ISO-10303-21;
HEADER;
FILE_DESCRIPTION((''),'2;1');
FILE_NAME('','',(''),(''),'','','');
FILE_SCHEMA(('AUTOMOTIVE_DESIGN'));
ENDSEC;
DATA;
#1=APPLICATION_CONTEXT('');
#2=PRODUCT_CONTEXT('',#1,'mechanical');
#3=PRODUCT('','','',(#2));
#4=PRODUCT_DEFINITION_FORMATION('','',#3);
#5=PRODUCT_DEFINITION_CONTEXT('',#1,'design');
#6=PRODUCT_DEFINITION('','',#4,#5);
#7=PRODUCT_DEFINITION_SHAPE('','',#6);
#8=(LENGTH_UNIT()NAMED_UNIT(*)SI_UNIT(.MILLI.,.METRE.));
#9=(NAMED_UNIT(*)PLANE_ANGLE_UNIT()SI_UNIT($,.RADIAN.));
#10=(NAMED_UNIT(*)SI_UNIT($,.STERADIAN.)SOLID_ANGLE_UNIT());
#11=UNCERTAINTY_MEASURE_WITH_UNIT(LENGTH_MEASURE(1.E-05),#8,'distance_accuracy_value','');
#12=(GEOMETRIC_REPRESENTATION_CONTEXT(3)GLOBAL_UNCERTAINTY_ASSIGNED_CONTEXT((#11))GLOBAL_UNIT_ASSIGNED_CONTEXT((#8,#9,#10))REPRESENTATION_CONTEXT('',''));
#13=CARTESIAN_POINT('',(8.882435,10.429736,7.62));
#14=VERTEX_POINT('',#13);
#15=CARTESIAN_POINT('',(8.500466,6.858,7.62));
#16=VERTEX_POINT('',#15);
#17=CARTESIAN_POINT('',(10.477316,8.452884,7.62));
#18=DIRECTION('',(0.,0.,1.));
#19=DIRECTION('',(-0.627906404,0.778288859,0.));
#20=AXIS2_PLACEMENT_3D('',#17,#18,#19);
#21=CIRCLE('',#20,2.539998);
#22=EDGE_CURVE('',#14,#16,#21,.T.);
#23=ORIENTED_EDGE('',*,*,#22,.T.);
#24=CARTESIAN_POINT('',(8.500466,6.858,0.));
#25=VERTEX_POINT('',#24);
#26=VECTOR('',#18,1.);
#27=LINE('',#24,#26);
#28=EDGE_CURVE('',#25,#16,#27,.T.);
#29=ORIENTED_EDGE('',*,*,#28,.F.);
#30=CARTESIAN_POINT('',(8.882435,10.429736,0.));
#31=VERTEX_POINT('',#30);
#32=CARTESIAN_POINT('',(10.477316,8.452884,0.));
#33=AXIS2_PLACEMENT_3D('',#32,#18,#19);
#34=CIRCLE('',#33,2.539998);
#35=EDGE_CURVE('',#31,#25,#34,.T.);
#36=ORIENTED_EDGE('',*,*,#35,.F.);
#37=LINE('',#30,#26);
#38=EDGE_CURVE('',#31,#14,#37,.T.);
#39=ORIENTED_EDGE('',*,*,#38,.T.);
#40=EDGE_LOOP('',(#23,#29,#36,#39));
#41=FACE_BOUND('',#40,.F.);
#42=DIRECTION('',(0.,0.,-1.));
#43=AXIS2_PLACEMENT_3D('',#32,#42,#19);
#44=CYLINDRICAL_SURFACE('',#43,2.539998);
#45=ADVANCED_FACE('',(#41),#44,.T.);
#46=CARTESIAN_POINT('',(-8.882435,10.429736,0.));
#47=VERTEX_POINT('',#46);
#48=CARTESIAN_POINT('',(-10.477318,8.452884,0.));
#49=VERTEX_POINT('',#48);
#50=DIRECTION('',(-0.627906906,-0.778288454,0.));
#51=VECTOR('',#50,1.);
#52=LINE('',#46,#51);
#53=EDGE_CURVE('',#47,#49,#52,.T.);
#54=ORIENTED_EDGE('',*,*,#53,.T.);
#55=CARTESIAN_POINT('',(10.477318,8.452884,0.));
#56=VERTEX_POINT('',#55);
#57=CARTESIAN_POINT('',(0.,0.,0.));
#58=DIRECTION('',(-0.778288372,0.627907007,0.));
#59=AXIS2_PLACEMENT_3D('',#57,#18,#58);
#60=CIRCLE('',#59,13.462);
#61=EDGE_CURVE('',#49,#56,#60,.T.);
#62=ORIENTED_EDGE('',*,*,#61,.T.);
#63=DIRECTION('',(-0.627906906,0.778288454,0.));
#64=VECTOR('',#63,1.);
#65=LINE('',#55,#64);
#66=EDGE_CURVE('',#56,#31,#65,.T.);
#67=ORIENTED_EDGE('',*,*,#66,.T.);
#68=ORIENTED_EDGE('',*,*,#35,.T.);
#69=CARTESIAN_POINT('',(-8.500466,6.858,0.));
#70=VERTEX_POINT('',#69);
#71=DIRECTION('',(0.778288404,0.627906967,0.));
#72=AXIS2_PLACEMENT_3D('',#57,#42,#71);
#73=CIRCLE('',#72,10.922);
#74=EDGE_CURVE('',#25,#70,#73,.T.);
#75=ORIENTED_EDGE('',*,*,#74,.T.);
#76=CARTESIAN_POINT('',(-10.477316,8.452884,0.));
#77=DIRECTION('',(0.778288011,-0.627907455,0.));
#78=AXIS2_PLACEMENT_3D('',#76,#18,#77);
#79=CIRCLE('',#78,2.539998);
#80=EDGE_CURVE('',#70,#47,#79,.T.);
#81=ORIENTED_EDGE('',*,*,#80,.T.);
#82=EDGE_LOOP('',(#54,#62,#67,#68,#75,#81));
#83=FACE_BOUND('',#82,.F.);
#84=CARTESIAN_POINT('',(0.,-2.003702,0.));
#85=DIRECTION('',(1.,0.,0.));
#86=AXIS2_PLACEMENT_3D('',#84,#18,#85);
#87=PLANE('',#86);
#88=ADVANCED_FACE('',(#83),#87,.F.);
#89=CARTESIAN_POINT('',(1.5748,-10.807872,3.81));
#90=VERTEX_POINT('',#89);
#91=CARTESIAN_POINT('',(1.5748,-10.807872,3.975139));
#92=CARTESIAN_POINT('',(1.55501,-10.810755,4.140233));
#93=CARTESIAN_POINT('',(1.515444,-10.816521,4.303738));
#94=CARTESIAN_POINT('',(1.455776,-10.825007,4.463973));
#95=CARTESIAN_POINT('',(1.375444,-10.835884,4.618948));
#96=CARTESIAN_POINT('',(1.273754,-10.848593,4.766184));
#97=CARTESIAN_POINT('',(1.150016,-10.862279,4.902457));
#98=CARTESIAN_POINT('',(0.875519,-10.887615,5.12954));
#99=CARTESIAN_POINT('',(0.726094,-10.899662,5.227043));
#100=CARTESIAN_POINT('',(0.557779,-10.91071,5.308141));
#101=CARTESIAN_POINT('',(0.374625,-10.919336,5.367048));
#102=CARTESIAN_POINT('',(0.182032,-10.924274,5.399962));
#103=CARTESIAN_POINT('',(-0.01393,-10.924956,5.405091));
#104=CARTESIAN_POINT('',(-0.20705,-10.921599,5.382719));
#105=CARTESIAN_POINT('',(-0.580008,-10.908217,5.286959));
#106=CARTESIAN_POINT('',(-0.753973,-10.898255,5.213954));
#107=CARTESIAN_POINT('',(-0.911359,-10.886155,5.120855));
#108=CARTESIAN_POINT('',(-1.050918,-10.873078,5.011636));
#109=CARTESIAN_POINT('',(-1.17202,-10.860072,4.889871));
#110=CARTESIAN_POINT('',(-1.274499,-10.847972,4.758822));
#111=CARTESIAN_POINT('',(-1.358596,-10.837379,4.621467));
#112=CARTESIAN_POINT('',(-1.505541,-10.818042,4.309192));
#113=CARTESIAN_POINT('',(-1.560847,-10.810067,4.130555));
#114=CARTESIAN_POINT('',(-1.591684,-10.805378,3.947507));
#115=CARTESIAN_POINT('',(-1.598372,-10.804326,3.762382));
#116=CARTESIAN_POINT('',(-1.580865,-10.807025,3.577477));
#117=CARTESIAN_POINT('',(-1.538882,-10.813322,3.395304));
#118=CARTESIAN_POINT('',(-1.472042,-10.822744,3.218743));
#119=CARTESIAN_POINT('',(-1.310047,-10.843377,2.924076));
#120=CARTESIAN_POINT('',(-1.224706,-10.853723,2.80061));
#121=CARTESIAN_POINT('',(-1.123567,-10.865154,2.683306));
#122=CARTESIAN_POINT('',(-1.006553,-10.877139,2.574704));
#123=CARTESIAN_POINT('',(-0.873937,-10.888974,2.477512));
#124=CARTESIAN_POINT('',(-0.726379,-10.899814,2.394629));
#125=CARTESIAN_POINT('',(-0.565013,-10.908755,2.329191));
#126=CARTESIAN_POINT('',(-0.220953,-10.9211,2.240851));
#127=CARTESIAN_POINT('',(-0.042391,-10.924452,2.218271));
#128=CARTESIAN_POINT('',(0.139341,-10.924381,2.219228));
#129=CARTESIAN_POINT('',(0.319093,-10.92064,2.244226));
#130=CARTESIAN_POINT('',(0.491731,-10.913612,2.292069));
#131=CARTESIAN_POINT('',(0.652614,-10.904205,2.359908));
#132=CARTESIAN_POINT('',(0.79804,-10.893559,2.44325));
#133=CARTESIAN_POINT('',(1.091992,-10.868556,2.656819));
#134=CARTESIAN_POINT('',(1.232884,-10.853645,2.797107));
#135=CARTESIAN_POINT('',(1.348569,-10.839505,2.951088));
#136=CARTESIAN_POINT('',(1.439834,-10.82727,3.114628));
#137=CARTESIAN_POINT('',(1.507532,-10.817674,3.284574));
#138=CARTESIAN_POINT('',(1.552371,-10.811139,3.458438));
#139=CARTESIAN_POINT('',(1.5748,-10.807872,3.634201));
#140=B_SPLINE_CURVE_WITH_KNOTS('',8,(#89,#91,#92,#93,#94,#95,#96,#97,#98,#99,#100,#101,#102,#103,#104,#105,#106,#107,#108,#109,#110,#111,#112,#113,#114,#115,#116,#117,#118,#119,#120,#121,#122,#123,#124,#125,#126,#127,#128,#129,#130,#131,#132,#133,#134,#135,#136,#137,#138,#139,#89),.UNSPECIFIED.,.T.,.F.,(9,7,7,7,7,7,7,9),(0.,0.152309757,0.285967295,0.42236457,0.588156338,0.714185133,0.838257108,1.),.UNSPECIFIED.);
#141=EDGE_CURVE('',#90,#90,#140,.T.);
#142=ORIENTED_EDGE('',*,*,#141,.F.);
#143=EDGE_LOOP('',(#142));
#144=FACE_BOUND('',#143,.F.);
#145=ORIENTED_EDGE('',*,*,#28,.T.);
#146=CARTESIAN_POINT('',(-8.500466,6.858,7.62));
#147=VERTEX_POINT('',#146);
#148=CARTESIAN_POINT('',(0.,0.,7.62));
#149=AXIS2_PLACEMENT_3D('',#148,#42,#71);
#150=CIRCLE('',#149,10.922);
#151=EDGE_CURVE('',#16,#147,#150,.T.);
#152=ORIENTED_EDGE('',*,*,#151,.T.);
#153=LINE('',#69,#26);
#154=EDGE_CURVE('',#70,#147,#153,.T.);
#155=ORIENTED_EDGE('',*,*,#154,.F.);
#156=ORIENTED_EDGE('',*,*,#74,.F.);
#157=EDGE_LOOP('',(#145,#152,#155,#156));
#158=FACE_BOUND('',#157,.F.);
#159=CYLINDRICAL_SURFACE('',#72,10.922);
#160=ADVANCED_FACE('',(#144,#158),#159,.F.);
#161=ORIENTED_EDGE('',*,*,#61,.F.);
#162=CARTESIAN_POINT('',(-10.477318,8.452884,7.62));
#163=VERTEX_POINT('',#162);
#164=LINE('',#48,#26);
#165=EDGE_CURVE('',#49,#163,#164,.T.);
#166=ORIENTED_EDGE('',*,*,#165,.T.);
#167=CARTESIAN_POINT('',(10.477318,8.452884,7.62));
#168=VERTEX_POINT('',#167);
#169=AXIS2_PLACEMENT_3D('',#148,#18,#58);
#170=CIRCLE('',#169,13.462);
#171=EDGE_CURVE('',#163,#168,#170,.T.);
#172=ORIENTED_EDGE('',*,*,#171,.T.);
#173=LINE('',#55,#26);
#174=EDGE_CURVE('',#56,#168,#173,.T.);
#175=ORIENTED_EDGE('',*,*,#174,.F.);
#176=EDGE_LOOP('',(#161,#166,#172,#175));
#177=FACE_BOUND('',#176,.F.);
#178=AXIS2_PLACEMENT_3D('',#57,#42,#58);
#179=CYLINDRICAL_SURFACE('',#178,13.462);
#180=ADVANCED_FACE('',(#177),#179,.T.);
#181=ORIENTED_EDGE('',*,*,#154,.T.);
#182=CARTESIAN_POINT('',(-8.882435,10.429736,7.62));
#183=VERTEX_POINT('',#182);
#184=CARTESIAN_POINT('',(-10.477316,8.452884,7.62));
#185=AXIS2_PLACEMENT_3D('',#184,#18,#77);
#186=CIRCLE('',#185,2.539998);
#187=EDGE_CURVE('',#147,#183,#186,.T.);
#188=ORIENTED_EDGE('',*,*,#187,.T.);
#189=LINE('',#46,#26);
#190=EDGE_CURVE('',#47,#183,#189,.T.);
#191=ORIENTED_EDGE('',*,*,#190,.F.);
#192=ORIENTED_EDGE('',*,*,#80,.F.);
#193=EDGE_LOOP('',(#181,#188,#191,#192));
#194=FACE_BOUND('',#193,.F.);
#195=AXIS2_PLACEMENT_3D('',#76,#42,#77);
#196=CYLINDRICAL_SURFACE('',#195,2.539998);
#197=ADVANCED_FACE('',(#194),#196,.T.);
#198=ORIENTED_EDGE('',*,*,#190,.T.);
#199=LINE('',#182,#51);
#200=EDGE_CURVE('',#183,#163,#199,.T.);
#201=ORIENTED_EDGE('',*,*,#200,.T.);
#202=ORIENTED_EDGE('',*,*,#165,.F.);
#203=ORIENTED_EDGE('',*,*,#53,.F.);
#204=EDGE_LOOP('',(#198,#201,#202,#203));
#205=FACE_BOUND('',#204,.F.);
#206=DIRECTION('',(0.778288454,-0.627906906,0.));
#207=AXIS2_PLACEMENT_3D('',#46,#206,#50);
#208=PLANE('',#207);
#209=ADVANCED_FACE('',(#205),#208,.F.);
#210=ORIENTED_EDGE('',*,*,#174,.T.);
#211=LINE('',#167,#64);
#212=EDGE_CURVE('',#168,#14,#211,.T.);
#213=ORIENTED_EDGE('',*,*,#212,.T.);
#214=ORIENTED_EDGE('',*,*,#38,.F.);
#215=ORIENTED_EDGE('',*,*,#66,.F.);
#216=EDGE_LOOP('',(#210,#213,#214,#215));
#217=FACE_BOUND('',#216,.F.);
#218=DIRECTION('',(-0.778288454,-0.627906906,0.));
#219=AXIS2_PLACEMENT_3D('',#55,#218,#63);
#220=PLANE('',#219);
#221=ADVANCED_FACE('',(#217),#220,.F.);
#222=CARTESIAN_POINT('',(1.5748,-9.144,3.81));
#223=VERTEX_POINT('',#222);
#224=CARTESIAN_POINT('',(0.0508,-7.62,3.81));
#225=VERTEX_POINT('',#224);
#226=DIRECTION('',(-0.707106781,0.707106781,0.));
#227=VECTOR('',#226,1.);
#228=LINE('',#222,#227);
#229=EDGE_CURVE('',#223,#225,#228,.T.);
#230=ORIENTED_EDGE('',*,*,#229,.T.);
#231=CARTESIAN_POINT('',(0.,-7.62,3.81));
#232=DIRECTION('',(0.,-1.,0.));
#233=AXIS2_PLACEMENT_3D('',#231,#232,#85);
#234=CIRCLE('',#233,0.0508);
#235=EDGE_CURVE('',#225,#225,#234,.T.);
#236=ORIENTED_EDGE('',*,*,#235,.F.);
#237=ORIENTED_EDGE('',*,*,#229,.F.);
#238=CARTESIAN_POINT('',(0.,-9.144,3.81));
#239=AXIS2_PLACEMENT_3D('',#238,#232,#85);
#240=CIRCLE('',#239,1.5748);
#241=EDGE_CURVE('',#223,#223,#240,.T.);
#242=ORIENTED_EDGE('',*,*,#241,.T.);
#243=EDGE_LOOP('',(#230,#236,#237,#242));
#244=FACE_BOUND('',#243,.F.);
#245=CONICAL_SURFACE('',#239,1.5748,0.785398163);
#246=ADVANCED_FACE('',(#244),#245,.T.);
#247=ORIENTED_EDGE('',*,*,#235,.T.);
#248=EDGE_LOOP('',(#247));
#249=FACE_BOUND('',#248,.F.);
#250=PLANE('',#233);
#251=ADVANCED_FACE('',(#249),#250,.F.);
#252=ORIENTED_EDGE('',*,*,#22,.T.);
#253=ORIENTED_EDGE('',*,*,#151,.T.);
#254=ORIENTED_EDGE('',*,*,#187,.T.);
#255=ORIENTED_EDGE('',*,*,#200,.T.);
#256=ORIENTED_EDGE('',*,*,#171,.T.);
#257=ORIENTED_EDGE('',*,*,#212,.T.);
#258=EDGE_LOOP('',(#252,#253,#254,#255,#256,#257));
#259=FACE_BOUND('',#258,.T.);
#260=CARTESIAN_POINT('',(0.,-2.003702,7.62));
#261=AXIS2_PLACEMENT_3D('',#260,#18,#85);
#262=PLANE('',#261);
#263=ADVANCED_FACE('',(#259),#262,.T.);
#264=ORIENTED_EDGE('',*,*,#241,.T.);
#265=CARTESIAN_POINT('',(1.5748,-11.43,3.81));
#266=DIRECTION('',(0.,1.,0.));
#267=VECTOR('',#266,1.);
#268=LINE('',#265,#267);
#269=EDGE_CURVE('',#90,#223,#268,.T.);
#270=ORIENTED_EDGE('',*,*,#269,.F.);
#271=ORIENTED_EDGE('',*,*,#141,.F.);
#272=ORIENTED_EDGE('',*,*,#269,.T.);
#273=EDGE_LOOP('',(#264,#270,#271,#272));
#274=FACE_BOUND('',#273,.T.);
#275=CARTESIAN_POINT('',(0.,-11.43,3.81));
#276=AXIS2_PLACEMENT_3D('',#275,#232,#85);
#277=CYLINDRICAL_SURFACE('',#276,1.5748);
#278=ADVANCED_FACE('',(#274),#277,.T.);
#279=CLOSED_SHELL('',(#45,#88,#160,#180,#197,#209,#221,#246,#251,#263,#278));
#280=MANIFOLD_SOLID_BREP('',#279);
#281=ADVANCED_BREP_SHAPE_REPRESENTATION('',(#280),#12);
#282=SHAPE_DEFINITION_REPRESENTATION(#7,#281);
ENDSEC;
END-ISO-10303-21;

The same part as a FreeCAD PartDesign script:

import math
import FreeCAD as App
import Part
import Sketcher
Q = App.Units.Quantity


def edges_at(feature, points):
    """Names of the edges that pass closest to the given points."""
    edges = feature.Shape.Edges
    near = lambda p: min(range(len(edges)), key=lambda i: edges[i].distToShape(Part.Vertex(*p))[0])
    return sorted({f"Edge{near(p) + 1}" for p in points})

doc = App.newDocument("Part")
body = doc.addObject("PartDesign::Body", "Body")

# Sketch on XY plane
sketch1 = body.newObject("Sketcher::SketchObject", "Sketch")
sketch1.AttachmentSupport = (doc.getObject("XY_Plane"), [""])
sketch1.MapMode = "FlatFace"
sketch1.addGeometry([
    Part.ArcOfCircle(Part.Circle(App.Vector(0, 0, 0), App.Vector(0, 0, 1), 10.9), math.radians(141), math.radians(399)),  # 0
    Part.ArcOfCircle(Part.Circle(App.Vector(-10.5, 8.5, 0), App.Vector(0, 0, 1), 2.5), math.radians(-39), math.radians(51)),  # 1
    Part.LineSegment(App.Vector(-8.9, 10.4, 0), App.Vector(-10.5, 8.5, 0)),  # 2
    Part.ArcOfCircle(Part.Circle(App.Vector(0, 0, 0), App.Vector(0, 0, 1), 13.5), math.radians(141), math.radians(399)),  # 3
    Part.LineSegment(App.Vector(10.5, 8.5, 0), App.Vector(8.9, 10.4, 0)),  # 4
    Part.ArcOfCircle(Part.Circle(App.Vector(10.5, 8.5, 0), App.Vector(0, 0, 1), 2.5), math.radians(129), math.radians(219)),  # 5
], False)
sketch1.addConstraint([
    Sketcher.Constraint("Tangent", 0, 1, 1, 1),
    Sketcher.Constraint("Coincident", 1, 2, 2, 1),
    Sketcher.Constraint("Tangent", 2, 2, 3, 1),
    Sketcher.Constraint("Tangent", 3, 2, 4, 1),
    Sketcher.Constraint("Coincident", 4, 2, 5, 1),
    Sketcher.Constraint("Tangent", 5, 2, 0, 2),
    Sketcher.Constraint("Coincident", 0, 3, -1, 1),
    Sketcher.Constraint("Coincident", 3, 3, -1, 1),
    Sketcher.Constraint("Coincident", 2, 2, 1, 3),
    Sketcher.Constraint("Coincident", 3, 2, 5, 3),
    Sketcher.Constraint("Horizontal", 1, 3, 5, 3),
    Sketcher.Constraint("Radius", 1, Q("0.0999999 in")),
    Sketcher.Constraint("Radius", 0, Q("0.43 in")),
    Sketcher.Constraint("DistanceY", -1, 1, 0, 1, Q("0.27 in")),
])
pad1 = body.newObject("PartDesign::Pad", "Pad")
pad1.Profile = sketch1
pad1.Length = Q("0.3 in")

# Sketch on XZ plane
sketch2 = body.newObject("Sketcher::SketchObject", "Sketch001")
sketch2.AttachmentSupport = (doc.getObject("XZ_Plane"), [""])
sketch2.MapMode = "FlatFace"
sketch2.AttachmentOffset = App.Placement(App.Vector(0, 0, 0.45 * 25.4), App.Rotation())
sketch2.addGeometry(Part.Circle(App.Vector(0, 3.8, 0), App.Vector(0, 0, 1), 1.6), False)
sketch2.addConstraint([
    Sketcher.Constraint("PointOnObject", 0, 3, -2),
    Sketcher.Constraint("Diameter", 0, Q("0.124 in")),
    Sketcher.Constraint("DistanceY", -1, 1, 0, 3, Q("0.15 in")),
])
pad2 = body.newObject("PartDesign::Pad", "Pad001")
pad2.Profile = sketch2
pad2.Length = Q("0.15 in")
pad2.Reversed = True
doc.recompute()

chamfer = body.newObject("PartDesign::Chamfer", "Chamfer")
chamfer.Base = (pad2, edges_at(pad2, [(-1.575, -7.62, 3.81)]))
chamfer.Size = Q("0.06 in")

doc.recompute()
